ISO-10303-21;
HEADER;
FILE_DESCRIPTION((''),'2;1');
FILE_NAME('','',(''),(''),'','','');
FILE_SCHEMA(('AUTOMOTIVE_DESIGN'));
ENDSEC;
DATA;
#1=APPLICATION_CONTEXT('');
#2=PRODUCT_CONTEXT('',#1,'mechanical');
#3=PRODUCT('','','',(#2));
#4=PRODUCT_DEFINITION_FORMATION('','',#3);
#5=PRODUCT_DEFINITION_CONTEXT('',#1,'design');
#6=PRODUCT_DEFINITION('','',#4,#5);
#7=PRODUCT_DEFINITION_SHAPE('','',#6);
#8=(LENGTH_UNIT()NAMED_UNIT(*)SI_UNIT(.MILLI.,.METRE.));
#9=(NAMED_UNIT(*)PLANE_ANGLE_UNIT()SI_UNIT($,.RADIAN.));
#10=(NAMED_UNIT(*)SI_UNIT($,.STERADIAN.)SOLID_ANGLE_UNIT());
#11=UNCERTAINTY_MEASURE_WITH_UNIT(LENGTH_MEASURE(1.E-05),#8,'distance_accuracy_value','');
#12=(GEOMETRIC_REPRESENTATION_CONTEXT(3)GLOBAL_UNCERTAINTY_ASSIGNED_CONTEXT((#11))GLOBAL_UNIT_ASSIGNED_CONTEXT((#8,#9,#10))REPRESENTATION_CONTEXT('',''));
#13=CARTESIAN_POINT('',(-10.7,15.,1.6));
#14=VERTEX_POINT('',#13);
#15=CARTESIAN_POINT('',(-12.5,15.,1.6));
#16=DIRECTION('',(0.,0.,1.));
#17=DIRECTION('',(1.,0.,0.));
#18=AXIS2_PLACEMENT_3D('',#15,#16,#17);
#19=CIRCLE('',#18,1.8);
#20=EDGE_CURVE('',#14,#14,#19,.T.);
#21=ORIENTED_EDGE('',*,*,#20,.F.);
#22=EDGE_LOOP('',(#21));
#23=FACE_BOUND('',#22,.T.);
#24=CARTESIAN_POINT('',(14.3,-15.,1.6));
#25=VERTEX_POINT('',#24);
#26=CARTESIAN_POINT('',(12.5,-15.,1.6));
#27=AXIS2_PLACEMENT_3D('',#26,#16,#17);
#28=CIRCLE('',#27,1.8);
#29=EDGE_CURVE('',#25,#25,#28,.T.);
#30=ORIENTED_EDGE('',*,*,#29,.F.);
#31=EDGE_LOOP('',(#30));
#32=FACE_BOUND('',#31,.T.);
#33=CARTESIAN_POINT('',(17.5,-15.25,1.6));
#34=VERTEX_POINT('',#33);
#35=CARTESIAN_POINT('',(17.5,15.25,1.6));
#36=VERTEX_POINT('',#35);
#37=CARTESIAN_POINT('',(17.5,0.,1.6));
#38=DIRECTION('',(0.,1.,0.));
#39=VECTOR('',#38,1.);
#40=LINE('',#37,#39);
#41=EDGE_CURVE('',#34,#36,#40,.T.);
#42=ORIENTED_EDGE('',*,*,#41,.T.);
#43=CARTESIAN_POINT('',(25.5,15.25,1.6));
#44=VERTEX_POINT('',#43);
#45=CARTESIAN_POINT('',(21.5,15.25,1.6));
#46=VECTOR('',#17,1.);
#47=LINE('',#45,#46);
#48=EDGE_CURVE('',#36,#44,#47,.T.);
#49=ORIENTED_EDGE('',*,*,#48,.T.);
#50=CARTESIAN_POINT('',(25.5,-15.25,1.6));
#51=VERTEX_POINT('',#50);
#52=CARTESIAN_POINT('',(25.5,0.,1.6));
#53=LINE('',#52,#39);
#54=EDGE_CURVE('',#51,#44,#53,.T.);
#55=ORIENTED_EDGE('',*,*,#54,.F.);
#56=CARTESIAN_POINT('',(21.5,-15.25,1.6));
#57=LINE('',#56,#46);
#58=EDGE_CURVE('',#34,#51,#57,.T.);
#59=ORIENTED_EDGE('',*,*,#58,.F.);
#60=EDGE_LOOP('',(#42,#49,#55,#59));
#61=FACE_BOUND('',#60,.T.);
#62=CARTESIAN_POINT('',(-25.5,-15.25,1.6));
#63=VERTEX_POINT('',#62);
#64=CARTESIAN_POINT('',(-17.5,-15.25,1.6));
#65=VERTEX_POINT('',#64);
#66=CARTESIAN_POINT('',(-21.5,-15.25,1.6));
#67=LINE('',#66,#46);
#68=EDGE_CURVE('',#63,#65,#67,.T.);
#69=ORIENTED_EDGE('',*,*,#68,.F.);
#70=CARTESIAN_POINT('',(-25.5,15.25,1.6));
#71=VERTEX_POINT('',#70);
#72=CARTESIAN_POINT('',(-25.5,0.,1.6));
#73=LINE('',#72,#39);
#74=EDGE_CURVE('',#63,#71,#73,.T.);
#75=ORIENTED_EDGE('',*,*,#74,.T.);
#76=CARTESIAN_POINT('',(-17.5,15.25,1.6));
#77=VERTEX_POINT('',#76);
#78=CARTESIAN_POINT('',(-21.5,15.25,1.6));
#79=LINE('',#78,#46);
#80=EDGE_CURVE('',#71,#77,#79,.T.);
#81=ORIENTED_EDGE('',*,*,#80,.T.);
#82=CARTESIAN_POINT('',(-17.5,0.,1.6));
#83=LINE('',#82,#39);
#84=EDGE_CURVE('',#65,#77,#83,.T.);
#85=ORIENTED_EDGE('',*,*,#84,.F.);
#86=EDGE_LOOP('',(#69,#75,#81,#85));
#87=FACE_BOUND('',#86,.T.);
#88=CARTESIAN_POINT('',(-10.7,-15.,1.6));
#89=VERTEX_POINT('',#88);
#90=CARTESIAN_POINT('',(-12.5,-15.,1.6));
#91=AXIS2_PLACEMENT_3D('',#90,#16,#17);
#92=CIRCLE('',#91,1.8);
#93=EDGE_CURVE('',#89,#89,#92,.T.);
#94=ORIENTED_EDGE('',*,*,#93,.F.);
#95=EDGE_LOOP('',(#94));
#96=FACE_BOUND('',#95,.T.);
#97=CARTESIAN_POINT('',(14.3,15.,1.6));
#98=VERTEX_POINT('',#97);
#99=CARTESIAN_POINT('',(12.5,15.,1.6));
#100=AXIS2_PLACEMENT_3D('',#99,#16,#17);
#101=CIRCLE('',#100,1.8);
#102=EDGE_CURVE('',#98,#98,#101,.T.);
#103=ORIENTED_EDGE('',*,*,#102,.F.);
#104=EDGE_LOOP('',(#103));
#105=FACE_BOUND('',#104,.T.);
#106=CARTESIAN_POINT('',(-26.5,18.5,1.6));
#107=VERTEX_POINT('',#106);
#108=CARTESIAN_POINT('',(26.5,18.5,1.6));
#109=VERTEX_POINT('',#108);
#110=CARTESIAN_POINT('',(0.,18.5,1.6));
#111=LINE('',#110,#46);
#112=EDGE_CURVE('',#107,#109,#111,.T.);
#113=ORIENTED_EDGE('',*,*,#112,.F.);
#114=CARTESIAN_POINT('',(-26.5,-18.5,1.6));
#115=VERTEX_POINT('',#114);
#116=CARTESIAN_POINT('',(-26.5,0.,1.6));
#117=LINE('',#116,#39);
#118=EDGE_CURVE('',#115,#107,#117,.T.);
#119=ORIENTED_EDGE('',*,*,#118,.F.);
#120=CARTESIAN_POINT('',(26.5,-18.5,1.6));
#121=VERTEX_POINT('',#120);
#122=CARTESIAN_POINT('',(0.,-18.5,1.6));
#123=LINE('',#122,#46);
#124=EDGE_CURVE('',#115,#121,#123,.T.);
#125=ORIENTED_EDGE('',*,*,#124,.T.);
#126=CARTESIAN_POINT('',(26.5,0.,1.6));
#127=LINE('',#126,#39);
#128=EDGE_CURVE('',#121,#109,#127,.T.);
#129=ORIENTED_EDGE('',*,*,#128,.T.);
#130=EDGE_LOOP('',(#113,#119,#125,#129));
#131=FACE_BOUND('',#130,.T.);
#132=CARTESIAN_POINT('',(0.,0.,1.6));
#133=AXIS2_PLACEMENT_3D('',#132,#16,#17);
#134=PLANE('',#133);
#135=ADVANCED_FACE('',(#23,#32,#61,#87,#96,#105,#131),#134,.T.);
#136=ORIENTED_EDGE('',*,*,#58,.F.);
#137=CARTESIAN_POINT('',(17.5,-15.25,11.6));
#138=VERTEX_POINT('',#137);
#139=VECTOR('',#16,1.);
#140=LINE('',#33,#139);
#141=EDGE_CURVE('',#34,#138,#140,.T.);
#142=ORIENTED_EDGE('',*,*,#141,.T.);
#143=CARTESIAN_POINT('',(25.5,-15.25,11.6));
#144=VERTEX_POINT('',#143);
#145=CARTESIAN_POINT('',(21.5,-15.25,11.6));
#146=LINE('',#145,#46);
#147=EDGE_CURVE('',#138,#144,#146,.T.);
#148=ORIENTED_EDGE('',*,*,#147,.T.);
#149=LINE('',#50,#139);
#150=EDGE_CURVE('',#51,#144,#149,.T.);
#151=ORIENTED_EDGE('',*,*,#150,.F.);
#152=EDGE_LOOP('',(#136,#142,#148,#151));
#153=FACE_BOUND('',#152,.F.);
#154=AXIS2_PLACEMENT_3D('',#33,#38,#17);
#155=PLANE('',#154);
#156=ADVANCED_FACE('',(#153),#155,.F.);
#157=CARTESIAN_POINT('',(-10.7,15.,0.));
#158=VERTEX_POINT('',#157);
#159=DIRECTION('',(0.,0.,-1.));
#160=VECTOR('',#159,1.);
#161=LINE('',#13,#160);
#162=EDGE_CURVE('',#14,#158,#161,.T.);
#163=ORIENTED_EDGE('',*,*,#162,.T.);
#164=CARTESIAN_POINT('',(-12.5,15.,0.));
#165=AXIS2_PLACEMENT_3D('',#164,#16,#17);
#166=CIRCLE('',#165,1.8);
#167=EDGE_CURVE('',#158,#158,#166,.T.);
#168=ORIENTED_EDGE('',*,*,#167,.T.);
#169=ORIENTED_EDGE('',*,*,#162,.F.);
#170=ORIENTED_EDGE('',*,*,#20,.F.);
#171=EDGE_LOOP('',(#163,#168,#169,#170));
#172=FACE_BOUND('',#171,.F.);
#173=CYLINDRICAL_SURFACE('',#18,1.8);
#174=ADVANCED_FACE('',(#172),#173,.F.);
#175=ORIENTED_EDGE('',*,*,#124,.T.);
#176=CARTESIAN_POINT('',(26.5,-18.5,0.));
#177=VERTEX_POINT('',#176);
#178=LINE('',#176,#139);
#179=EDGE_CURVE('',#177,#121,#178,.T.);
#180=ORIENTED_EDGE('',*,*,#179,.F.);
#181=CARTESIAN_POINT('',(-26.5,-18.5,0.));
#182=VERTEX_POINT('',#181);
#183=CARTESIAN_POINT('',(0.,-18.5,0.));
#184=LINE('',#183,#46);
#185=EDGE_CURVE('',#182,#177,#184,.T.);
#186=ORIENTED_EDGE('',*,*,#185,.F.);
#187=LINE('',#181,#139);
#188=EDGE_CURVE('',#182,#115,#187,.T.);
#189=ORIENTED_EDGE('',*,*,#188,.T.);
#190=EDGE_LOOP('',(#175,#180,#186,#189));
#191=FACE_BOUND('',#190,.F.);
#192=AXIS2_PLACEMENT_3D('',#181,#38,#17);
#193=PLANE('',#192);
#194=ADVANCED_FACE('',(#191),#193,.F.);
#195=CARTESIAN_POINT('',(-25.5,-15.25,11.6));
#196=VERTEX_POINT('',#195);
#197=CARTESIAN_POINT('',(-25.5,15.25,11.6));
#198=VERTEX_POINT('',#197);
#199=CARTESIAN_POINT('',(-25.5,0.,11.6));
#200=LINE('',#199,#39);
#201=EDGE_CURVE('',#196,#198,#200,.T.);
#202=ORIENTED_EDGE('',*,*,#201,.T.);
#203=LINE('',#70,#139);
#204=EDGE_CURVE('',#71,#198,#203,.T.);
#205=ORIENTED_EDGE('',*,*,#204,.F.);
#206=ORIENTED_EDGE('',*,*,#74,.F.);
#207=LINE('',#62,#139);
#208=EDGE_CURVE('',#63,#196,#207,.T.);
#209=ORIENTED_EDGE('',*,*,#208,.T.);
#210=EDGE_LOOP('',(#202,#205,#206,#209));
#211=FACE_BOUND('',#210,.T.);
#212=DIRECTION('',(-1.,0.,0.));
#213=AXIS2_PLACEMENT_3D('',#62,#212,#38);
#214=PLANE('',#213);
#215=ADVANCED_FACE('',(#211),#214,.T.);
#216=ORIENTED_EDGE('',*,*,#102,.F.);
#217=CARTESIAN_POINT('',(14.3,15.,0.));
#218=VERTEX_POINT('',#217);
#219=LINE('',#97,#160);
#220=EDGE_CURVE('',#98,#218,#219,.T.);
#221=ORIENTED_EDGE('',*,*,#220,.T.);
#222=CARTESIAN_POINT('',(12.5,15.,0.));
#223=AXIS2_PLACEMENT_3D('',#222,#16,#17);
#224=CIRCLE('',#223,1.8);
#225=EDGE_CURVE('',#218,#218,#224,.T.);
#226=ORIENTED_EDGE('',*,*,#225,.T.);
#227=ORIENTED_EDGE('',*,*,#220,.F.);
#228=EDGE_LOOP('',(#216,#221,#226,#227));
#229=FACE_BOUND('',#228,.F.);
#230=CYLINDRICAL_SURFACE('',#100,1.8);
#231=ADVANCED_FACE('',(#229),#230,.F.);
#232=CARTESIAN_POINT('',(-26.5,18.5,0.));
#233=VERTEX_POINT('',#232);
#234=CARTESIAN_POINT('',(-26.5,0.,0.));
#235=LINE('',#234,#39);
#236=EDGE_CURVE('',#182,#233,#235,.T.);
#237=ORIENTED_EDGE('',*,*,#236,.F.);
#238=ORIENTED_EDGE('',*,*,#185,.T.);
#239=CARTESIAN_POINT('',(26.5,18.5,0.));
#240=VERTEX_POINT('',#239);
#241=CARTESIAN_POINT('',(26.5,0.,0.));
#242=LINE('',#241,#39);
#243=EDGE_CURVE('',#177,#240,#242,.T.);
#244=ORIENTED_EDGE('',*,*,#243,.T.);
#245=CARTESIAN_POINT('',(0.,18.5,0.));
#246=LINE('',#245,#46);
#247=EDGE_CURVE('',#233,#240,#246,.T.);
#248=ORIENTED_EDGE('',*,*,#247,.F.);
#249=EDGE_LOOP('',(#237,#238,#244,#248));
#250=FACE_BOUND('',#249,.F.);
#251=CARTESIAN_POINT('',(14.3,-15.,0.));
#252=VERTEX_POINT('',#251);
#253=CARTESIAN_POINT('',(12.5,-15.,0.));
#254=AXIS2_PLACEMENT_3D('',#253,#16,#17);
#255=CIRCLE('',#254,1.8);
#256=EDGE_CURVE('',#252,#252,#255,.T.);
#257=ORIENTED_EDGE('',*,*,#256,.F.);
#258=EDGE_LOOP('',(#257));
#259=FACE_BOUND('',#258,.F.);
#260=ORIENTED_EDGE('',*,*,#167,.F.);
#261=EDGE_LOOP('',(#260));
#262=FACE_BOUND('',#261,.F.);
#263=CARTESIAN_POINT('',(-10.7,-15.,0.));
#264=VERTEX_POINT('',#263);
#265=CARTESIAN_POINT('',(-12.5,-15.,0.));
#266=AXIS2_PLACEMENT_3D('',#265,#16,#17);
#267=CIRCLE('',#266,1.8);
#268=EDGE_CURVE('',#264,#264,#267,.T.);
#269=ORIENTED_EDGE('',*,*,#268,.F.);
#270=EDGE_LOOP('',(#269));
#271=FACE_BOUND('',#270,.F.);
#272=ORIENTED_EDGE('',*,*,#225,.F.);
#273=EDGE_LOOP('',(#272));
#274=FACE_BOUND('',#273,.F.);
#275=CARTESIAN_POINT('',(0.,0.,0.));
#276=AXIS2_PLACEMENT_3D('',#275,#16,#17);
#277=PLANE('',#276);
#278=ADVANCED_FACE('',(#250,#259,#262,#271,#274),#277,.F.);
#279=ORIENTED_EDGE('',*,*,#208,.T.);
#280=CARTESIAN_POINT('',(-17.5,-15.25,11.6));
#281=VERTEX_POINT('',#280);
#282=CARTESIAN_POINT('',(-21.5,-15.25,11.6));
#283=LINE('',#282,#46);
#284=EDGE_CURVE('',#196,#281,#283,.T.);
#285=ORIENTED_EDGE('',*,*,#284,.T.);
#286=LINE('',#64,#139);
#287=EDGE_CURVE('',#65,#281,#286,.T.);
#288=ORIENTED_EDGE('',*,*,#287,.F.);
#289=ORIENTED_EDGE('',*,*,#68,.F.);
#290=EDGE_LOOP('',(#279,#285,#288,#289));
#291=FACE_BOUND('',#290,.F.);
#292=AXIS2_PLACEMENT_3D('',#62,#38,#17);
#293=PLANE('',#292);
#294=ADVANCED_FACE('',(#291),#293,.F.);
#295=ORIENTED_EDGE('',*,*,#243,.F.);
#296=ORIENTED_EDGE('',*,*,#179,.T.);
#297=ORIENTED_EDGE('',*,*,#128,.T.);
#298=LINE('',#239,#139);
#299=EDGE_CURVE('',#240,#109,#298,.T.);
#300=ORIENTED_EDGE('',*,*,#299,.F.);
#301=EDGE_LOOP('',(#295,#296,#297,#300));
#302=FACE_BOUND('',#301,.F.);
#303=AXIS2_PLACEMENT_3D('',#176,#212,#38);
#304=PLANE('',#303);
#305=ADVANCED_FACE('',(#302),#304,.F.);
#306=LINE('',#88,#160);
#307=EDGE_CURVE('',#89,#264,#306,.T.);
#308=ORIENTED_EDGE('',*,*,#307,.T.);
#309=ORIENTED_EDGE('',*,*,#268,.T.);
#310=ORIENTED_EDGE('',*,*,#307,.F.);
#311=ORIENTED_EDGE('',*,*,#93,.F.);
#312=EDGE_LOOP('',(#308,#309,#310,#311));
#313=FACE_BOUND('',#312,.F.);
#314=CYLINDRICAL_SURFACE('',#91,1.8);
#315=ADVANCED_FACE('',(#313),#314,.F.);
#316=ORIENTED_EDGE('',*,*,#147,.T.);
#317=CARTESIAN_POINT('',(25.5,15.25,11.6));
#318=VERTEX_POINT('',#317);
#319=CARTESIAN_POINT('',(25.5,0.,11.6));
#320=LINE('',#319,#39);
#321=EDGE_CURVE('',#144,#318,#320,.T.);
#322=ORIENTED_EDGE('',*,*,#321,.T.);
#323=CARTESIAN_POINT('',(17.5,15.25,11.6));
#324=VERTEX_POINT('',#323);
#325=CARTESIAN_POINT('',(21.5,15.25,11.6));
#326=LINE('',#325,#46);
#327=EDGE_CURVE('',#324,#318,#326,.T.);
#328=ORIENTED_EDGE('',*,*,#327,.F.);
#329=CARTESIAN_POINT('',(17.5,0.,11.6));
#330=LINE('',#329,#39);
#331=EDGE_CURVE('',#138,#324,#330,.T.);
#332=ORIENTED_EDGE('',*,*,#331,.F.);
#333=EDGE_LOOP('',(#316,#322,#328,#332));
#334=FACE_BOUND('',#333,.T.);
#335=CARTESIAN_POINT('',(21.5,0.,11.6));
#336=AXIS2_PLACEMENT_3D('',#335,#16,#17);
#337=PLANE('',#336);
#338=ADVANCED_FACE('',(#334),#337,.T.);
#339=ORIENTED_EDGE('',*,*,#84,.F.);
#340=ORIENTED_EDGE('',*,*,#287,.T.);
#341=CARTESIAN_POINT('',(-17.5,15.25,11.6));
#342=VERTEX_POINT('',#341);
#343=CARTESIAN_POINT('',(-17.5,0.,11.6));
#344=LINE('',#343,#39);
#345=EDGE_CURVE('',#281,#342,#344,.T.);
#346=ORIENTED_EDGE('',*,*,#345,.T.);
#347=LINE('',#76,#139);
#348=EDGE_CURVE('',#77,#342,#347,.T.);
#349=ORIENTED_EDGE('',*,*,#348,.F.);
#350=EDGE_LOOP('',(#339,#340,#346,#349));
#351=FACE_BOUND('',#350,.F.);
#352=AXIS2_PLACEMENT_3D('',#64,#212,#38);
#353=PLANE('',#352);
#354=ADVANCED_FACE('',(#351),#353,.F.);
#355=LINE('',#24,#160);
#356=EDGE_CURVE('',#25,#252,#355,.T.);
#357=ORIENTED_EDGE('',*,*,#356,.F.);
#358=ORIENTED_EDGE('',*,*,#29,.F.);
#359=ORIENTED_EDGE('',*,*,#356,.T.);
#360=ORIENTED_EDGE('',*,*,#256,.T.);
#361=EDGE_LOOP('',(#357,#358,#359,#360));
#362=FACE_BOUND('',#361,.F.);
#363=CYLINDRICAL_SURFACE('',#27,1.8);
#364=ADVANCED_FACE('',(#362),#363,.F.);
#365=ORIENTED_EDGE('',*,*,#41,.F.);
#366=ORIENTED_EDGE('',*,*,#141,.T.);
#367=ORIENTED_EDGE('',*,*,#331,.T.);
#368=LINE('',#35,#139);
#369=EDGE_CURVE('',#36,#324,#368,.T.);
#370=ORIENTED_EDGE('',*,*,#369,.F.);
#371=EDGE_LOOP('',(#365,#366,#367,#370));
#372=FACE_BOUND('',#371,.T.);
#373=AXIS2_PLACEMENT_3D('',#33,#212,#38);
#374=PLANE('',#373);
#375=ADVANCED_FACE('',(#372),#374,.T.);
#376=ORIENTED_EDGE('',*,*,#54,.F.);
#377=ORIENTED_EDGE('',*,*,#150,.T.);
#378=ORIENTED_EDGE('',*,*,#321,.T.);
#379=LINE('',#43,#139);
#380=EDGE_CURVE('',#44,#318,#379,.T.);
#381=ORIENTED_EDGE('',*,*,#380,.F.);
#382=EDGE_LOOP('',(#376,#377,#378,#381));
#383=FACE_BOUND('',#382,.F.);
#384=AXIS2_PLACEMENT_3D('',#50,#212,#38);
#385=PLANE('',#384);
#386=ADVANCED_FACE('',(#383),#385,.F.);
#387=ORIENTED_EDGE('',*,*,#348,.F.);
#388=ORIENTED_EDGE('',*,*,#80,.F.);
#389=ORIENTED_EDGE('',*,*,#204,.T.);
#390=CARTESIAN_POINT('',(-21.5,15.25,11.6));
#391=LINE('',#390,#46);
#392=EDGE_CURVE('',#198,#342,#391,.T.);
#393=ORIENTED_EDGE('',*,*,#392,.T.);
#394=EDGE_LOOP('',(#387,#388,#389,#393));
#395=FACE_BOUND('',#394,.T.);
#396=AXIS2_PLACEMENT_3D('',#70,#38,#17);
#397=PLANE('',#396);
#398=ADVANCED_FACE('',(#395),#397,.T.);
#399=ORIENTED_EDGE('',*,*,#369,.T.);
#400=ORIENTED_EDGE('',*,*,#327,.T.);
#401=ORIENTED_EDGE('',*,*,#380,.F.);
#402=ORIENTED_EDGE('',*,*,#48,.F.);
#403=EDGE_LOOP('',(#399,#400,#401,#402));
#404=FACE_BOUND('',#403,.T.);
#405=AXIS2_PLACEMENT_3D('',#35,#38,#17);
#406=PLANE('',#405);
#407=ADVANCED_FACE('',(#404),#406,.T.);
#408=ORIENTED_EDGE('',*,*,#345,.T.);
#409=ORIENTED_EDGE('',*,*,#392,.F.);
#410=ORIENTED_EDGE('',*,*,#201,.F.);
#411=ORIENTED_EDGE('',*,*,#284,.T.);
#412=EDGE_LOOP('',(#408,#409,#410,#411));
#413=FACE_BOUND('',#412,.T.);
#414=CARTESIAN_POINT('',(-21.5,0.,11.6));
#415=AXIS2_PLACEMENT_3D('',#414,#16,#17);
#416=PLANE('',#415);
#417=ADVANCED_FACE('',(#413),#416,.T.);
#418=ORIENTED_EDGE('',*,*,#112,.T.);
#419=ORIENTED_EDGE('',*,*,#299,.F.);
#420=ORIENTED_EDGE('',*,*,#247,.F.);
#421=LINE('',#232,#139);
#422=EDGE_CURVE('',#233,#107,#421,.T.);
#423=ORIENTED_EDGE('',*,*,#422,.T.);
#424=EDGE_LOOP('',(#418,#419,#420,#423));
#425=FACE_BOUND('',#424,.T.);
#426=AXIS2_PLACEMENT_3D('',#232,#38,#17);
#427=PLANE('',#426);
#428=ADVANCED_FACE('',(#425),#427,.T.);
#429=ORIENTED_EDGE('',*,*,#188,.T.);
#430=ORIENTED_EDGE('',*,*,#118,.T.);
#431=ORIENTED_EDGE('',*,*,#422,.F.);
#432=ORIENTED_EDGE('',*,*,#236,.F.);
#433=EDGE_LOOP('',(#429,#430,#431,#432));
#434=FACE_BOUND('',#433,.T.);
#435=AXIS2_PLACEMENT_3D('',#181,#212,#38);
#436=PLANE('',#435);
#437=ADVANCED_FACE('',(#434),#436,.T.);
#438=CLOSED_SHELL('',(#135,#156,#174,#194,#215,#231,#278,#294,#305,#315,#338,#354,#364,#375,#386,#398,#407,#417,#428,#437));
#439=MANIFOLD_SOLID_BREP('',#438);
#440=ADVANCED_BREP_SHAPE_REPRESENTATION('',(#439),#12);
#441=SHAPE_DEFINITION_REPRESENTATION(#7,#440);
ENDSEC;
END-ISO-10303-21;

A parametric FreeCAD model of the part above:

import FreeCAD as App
import Part
import Sketcher

V = App.Vector

doc = App.newDocument("Part")
body = doc.addObject("PartDesign::Body", "Body")

# Sketch on XY plane
sketch1 = body.newObject("Sketcher::SketchObject", "Sketch")
sketch1.AttachmentSupport = (doc.getObject("XY_Plane"), [""])
sketch1.MapMode = "FlatFace"
sketch1.addGeometry([
    Part.LineSegment(V(-26, 18, 0), V(-26, -18, 0)),
    Part.LineSegment(V(-26, -18, 0), V(26, -18, 0)),
    Part.LineSegment(V(26, -18, 0), V(26, 18, 0)),
    Part.LineSegment(V(26, 18, 0), V(-26, 18, 0)),
], False)
sketch1.addConstraint([
    Sketcher.Constraint("Coincident", 0, 2, 1, 1),
    Sketcher.Constraint("Coincident", 1, 2, 2, 1),
    Sketcher.Constraint("Coincident", 2, 2, 3, 1),
    Sketcher.Constraint("Coincident", 3, 2, 0, 1),
    Sketcher.Constraint("Vertical", 0),
    Sketcher.Constraint("Horizontal", 1),
    Sketcher.Constraint("Vertical", 2),
    Sketcher.Constraint("Horizontal", 3),
    Sketcher.Constraint("Symmetric", 0, 2, 2, 2, -1, 1),
    Sketcher.Constraint("DistanceX", 1, 1, 1, 2, 53.0),
    Sketcher.Constraint("DistanceY", 0, 2, 0, 1, 37.0),
])
pad1 = body.newObject("PartDesign::Pad", "Pad")
pad1.Profile = sketch1
pad1.Length = 1.6

# Sketch on XY plane
sketch2 = body.newObject("Sketcher::SketchObject", "Sketch001")
sketch2.AttachmentSupport = (doc.getObject("XY_Plane"), [""])
sketch2.MapMode = "FlatFace"
sketch2.AttachmentOffset = App.Placement(V(0, 0, 1.6), App.Rotation())
sketch2.addGeometry([
    Part.LineSegment(V(18, 15, 0), V(18, -15, 0)),  # 0
    Part.LineSegment(V(18, -15, 0), V(26, -15, 0)),  # 1
    Part.LineSegment(V(26, -15, 0), V(26, 15, 0)),  # 2
    Part.LineSegment(V(26, 15, 0), V(18, 15, 0)),  # 3
    Part.LineSegment(V(-26, 15, 0), V(-26, -15, 0)),  # 4
    Part.LineSegment(V(-26, -15, 0), V(-18, -15, 0)),  # 5
    Part.LineSegment(V(-18, -15, 0), V(-18, 15, 0)),  # 6
    Part.LineSegment(V(-18, 15, 0), V(-26, 15, 0)),  # 7
], False)
sketch2.addConstraint([
    Sketcher.Constraint("Coincident", 0, 2, 1, 1),
    Sketcher.Constraint("Coincident", 1, 2, 2, 1),
    Sketcher.Constraint("Coincident", 2, 2, 3, 1),
    Sketcher.Constraint("Coincident", 3, 2, 0, 1),
    Sketcher.Constraint("Coincident", 4, 2, 5, 1),
    Sketcher.Constraint("Coincident", 5, 2, 6, 1),
    Sketcher.Constraint("Coincident", 6, 2, 7, 1),
    Sketcher.Constraint("Coincident", 7, 2, 4, 1),
    Sketcher.Constraint("Vertical", 0),
    Sketcher.Constraint("Horizontal", 1),
    Sketcher.Constraint("Vertical", 2),
    Sketcher.Constraint("Horizontal", 3),
    Sketcher.Constraint("Vertical", 4),
    Sketcher.Constraint("Horizontal", 5),
    Sketcher.Constraint("Vertical", 6),
    Sketcher.Constraint("Horizontal", 7),
    Sketcher.Constraint("Symmetric", 2, 2, 4, 2, -1, 1),
    Sketcher.Constraint("Symmetric", 0, 2, 6, 2, -1, 1),
    Sketcher.Constraint("Horizontal", 1, 2, 4, 2),
    Sketcher.Constraint("DistanceX", 1, 1, 1, 2, 8.0),
    Sketcher.Constraint("DistanceY", 0, 2, 0, 1, 30.5),
    Sketcher.Constraint("DistanceX", 4, 2, 0, 2, 43.0),
])
pad2 = body.newObject("PartDesign::Pad", "Pad001")
pad2.Profile = sketch2
pad2.Length = 10

# Sketch on XY plane
sketch3 = body.newObject("Sketcher::SketchObject", "Sketch002")
sketch3.AttachmentSupport = (doc.getObject("XY_Plane"), [""])
sketch3.MapMode = "FlatFace"
sketch3.AttachmentOffset = App.Placement(V(0, 0, 1.6), App.Rotation())
sketch3.addGeometry([
    Part.Circle(V(12.5, -15, 0), V(0, 0, 1), 1.8),
    Part.Circle(V(12.5, 15, 0), V(0, 0, 1), 1.8),
    Part.Circle(V(-12.5, 15, 0), V(0, 0, 1), 1.8),
    Part.Circle(V(-12.5, -15, 0), V(0, 0, 1), 1.8),
], False)
sketch3.addConstraint([
    Sketcher.Constraint("Equal", 0, 1),
    Sketcher.Constraint("Equal", 1, 2),
    Sketcher.Constraint("Equal", 2, 3),
    Sketcher.Constraint("Symmetric", 0, 3, 2, 3, -1, 1),
    Sketcher.Constraint("Symmetric", 1, 3, 3, 3, -1, 1),
    Sketcher.Constraint("Symmetric", 1, 3, 2, 3, -2),
    Sketcher.Constraint("Diameter", 0, 3.6),
    Sketcher.Constraint("DistanceY", 0, 3, -1, 1, 15.0),
    Sketcher.Constraint("DistanceX", 2, 3, 1, 3, 25.0),
])
pocket1 = body.newObject("PartDesign::Pocket", "Pocket")
pocket1.Profile = sketch3
pocket1.Type = "ThroughAll"

doc.recompute()
